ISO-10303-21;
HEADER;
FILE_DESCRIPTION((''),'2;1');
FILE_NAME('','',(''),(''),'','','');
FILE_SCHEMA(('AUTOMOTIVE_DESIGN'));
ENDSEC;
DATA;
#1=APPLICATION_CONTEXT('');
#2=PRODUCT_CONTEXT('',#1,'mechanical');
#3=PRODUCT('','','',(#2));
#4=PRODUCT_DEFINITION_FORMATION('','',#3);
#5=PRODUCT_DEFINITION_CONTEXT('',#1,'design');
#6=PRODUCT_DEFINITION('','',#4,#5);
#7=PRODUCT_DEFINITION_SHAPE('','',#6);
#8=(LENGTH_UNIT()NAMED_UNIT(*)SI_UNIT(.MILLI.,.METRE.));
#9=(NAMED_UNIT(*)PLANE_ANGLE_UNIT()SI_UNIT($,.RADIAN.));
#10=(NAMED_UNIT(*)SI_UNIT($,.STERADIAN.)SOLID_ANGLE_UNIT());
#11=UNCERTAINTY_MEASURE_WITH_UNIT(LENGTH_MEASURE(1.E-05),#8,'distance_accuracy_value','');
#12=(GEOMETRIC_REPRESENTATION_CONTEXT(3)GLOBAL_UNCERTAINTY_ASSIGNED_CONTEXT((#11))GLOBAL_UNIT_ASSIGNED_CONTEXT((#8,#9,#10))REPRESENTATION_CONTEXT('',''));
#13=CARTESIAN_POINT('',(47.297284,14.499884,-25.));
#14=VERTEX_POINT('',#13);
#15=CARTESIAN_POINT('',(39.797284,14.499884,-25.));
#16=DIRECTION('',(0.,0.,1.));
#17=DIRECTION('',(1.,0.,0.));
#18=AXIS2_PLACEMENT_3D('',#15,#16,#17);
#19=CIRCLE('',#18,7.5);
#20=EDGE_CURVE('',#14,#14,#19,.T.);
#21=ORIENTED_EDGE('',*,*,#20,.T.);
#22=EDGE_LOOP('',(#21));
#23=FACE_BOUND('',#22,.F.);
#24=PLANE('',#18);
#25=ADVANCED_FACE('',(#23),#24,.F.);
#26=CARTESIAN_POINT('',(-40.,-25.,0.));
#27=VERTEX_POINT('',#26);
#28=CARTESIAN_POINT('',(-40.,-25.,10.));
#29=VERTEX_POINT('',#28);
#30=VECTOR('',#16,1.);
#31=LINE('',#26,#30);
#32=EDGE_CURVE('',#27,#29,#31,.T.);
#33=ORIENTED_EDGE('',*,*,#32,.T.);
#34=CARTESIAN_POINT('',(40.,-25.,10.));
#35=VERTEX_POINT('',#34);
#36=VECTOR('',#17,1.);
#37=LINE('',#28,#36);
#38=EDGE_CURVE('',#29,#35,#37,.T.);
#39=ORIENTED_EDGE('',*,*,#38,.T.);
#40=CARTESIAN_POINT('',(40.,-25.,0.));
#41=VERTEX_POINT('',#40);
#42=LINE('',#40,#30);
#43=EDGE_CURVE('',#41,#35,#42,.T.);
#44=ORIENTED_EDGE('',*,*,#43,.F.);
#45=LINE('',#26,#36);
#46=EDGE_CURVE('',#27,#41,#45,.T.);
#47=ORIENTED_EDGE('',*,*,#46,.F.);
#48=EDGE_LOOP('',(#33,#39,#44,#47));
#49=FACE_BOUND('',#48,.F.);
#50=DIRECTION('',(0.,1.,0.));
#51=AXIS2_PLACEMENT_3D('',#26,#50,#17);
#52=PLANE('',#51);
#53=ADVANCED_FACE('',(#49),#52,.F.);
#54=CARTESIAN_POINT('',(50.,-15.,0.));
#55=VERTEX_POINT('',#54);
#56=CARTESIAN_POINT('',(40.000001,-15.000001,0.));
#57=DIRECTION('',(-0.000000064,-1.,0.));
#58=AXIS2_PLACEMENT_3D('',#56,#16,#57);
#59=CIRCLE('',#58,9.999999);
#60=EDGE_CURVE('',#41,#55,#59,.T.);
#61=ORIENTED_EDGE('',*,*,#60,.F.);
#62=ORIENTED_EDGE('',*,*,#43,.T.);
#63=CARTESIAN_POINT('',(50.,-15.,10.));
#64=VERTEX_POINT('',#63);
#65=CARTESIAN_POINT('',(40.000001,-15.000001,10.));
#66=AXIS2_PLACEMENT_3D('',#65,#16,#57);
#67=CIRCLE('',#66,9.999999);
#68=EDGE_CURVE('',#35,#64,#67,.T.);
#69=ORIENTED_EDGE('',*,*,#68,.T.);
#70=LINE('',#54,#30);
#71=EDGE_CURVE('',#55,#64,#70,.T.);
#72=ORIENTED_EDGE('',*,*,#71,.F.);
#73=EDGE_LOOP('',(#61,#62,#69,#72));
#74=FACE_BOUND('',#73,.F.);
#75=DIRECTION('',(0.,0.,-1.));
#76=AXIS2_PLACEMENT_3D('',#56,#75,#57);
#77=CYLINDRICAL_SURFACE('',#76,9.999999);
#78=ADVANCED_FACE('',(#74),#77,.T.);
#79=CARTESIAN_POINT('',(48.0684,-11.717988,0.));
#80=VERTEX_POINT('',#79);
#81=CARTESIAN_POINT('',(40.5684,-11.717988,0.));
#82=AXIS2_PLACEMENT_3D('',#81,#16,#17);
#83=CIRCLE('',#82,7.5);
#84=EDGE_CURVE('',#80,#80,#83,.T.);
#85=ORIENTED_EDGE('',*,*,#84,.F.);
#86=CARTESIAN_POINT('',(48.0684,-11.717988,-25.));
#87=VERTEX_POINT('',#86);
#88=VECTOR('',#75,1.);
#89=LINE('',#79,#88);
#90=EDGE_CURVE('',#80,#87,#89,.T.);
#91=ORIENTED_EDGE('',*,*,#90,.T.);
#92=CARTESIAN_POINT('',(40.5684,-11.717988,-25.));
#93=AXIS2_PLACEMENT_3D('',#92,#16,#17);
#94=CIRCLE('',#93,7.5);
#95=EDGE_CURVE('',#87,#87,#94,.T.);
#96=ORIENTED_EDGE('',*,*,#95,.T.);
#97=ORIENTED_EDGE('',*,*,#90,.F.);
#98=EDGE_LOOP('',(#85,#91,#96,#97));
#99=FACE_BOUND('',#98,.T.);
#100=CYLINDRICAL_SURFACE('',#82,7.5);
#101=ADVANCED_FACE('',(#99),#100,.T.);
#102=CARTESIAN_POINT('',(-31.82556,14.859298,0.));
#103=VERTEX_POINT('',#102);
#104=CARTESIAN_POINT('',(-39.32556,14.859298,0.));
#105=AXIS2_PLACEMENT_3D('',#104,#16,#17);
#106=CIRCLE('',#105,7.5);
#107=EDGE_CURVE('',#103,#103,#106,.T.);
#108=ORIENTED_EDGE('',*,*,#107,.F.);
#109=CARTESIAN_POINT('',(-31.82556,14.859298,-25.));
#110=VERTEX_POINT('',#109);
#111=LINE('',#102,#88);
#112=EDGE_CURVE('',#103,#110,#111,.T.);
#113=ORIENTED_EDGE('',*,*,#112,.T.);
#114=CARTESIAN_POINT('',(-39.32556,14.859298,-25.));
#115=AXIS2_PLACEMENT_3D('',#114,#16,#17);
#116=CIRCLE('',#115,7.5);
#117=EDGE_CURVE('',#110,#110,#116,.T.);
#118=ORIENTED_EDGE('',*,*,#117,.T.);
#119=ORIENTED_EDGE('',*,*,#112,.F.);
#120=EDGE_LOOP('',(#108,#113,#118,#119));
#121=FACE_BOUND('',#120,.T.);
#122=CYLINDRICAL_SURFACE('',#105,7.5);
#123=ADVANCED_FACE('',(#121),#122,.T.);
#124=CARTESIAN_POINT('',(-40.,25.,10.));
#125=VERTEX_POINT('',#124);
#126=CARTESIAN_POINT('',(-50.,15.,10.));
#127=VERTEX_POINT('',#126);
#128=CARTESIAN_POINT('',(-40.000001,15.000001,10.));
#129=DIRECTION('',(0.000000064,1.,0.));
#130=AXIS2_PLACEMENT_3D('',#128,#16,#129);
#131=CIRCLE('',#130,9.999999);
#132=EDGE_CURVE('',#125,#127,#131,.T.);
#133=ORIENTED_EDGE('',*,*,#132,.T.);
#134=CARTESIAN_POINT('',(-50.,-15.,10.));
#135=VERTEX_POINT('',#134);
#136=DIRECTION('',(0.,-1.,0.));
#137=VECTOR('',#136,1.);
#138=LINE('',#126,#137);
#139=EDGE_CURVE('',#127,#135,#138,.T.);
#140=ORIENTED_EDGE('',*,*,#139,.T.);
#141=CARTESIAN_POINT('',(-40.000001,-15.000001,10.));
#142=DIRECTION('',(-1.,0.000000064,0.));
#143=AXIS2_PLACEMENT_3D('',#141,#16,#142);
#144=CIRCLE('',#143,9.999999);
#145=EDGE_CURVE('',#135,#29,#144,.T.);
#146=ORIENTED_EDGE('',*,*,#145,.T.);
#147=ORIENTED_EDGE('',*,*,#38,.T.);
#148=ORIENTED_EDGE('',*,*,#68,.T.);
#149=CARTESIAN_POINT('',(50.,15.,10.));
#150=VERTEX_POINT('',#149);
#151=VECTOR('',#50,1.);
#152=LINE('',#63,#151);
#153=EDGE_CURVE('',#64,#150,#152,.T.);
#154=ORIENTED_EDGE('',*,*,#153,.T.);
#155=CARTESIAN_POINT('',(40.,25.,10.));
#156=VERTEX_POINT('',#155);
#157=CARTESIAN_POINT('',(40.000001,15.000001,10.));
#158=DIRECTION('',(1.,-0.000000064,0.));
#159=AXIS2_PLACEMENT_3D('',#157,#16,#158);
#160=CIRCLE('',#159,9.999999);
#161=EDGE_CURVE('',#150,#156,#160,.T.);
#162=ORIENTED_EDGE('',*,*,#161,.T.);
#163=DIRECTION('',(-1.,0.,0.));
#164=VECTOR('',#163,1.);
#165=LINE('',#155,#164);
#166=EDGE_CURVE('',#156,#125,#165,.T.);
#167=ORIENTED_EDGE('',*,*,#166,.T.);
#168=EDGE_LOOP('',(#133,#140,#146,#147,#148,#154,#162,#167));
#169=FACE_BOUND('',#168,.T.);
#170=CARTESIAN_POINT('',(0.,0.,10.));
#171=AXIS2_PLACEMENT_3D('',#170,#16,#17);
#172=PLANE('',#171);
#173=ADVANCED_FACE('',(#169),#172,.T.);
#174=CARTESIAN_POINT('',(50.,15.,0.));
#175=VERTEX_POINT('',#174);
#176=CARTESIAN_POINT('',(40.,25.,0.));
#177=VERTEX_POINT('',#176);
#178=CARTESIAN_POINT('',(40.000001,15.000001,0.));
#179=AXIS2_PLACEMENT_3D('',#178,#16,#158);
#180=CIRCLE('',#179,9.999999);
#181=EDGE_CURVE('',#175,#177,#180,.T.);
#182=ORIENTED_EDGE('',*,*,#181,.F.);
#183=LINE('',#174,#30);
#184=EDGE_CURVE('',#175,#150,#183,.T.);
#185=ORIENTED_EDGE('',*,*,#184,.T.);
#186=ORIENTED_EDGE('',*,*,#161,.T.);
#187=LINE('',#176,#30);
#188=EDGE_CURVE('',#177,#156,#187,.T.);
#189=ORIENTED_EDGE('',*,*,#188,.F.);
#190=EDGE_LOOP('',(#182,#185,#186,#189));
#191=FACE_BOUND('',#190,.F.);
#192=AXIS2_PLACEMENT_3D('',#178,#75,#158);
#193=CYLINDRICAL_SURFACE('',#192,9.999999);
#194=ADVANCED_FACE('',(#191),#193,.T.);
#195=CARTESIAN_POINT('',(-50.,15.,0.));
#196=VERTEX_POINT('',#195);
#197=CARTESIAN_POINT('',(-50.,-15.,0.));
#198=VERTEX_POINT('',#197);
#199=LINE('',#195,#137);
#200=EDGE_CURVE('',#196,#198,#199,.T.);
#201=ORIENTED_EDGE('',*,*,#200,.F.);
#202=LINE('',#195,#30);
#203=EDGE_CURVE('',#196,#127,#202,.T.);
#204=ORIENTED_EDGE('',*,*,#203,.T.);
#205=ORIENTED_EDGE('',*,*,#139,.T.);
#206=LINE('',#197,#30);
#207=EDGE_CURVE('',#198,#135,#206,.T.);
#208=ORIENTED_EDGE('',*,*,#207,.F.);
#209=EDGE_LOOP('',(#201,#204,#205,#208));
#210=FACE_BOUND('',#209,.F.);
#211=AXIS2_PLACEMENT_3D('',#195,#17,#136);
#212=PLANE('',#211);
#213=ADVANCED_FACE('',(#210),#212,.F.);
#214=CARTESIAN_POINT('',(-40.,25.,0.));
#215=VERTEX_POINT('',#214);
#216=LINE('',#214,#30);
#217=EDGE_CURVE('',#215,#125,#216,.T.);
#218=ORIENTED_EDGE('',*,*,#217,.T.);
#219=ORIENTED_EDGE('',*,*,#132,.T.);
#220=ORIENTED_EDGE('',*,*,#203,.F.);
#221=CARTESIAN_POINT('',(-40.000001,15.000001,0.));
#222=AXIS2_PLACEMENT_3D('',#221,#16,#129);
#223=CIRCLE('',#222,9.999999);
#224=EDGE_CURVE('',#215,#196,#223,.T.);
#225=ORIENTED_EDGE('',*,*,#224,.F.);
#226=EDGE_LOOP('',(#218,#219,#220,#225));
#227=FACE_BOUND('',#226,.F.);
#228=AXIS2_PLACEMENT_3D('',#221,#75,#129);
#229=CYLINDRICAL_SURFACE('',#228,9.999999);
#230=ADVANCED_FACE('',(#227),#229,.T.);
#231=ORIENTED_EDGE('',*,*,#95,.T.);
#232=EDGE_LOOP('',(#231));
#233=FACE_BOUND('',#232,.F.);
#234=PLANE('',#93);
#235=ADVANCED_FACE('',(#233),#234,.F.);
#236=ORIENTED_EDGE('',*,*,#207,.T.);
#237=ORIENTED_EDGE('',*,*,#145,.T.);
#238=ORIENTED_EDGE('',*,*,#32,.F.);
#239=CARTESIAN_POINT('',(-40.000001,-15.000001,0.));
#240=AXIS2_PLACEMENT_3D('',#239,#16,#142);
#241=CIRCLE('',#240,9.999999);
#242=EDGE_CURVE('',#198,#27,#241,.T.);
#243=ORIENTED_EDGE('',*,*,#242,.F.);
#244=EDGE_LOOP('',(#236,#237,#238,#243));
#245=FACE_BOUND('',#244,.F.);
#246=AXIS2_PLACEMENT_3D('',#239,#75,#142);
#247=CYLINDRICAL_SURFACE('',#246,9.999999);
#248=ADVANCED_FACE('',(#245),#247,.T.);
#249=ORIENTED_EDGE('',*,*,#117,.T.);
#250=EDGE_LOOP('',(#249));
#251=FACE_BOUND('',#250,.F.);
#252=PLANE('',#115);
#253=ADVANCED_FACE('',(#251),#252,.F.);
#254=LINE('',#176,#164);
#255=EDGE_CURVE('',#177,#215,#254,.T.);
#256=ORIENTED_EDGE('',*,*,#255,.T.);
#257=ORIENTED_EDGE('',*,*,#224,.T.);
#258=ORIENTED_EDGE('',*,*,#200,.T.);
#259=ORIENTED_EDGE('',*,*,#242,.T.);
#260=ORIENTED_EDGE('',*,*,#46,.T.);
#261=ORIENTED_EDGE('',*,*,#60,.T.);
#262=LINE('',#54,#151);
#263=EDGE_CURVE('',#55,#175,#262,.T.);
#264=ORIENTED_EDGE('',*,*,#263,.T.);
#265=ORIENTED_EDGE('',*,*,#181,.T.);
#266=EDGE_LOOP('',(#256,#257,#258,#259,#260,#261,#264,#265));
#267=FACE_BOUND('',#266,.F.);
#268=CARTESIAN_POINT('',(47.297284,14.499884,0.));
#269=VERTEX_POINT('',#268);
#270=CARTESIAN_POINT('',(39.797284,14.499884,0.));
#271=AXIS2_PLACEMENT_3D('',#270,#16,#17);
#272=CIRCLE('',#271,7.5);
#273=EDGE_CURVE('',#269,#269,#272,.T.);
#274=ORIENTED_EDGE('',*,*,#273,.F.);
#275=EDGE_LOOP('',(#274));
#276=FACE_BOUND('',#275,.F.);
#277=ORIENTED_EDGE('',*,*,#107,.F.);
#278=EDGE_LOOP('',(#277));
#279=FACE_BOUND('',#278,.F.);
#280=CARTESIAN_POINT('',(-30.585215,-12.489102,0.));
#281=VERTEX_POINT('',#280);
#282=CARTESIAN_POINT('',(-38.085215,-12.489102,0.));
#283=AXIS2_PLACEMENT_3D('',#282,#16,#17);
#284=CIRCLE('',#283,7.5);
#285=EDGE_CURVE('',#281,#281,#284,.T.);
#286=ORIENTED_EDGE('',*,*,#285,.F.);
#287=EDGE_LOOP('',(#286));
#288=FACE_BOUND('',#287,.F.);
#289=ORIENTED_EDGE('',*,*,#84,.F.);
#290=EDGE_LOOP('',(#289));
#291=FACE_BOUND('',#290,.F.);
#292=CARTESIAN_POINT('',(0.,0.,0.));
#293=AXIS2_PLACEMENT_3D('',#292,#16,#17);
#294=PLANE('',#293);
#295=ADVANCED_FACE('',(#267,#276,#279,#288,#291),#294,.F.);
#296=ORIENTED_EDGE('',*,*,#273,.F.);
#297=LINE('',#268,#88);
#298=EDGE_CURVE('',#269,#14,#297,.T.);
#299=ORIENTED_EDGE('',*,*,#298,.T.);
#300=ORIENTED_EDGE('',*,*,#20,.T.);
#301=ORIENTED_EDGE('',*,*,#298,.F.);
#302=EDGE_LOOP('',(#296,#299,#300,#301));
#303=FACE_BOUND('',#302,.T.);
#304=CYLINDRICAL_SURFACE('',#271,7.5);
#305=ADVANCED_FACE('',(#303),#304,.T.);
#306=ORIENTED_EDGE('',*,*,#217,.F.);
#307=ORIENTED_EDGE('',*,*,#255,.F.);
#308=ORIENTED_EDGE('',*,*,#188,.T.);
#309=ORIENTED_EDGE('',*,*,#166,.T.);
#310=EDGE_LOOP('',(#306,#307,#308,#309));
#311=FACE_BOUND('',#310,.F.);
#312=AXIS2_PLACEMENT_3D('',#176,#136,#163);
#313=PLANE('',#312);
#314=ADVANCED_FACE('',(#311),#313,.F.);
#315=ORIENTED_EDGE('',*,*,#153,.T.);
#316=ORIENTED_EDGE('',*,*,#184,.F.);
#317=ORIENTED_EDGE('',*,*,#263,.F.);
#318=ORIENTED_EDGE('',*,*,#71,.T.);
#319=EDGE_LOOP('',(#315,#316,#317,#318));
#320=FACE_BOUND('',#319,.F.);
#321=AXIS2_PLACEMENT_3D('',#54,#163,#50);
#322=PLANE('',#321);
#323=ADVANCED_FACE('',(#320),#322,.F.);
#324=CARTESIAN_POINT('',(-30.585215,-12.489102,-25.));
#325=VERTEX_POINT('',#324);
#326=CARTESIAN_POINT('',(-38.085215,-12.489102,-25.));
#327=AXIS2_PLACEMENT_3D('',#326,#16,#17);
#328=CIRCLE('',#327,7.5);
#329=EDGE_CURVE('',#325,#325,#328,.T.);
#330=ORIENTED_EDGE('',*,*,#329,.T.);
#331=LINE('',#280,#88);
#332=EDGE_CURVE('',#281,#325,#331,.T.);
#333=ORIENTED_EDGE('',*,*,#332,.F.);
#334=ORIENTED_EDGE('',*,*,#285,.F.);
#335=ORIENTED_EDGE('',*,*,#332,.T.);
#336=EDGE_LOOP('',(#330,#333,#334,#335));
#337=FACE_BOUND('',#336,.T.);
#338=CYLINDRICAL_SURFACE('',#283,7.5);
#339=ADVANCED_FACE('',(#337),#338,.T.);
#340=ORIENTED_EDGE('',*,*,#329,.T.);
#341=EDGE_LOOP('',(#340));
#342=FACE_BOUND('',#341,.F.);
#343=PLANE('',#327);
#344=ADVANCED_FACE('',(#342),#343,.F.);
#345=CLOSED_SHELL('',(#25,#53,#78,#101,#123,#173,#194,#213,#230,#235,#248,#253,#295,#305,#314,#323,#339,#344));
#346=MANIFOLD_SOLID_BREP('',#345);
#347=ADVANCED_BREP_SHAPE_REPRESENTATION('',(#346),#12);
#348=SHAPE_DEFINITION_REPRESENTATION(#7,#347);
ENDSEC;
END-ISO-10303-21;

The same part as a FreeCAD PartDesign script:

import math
import FreeCAD as App
import Part
import Sketcher

V = App.Vector

doc = App.newDocument("Part")
body = doc.addObject("PartDesign::Body", "Body")

sketch1 = doc.addObject("Sketcher::SketchObject", "Sketch")
body.addObject(sketch1)
sketch1.AttachmentSupport = (doc.XY_Plane, [""])
sketch1.MapMode = "FlatFace"
sketch1.addGeometry([
    Part.LineSegment(V(40, 25, 0), V(-40, 25, 0)),
    Part.ArcOfCircle(Part.Circle(V(-40.000001, 15.000001, 0), V(0, 0, 1), 9.999999), math.radians(89.999996), math.radians(180.000004)),
    Part.LineSegment(V(-50, 15, 0), V(-50, -15, 0)),
    Part.ArcOfCircle(Part.Circle(V(-40.000001, -15.000001, 0), V(0, 0, 1), 9.999999), math.radians(179.999996), math.radians(270.000004)),
    Part.LineSegment(V(-40, -25, 0), V(40, -25, 0)),
    Part.ArcOfCircle(Part.Circle(V(40.000001, -15.000001, 0), V(0, 0, 1), 9.999999), math.radians(-90.000004), math.radians(0.000004)),
    Part.LineSegment(V(50, -15, 0), V(50, 15, 0)),
    Part.ArcOfCircle(Part.Circle(V(40.000001, 15.000001, 0), V(0, 0, 1), 9.999999), math.radians(-0.000004), math.radians(90.000004)),
], False)
sketch1.addConstraint([
    Sketcher.Constraint("Tangent", 0, 2, 1, 1),
    Sketcher.Constraint("Tangent", 1, 2, 2, 1),
    Sketcher.Constraint("Tangent", 2, 2, 3, 1),
    Sketcher.Constraint("Tangent", 3, 2, 4, 1),
    Sketcher.Constraint("Tangent", 4, 2, 5, 1),
    Sketcher.Constraint("Tangent", 5, 2, 6, 1),
    Sketcher.Constraint("Tangent", 6, 2, 7, 1),
    Sketcher.Constraint("Tangent", 7, 2, 0, 1),
    Sketcher.Constraint("Horizontal", 0),
    Sketcher.Constraint("Vertical", 2),
    Sketcher.Constraint("Horizontal", 4),
    Sketcher.Constraint("Vertical", 6),
    Sketcher.Constraint("Equal", 1, 3),
    Sketcher.Constraint("Equal", 3, 5),
    Sketcher.Constraint("Equal", 5, 7),
    Sketcher.Constraint("Symmetric", 1, 3, 5, 3, -1, 1),
    Sketcher.Constraint("Radius", 1, 9.999999),
    Sketcher.Constraint("DistanceX", 0, 2, 0, 1, 80.0),
    Sketcher.Constraint("DistanceY", 2, 2, 2, 1, 30.0),
])
pad1 = doc.addObject("PartDesign::Pad", "Pad")
body.addObject(pad1)
pad1.Profile = sketch1
pad1.Length = 10

sketch2 = doc.addObject("Sketcher::SketchObject", "Sketch001")
body.addObject(sketch2)
sketch2.AttachmentSupport = (doc.XY_Plane, [""])
sketch2.MapMode = "FlatFace"
sketch2.addGeometry([
    Part.Circle(V(-39.32556, 14.859298, 0), V(0, 0, 1), 7.5),
    Part.Circle(V(-38.085215, -12.489102, 0), V(0, 0, 1), 7.5),
    Part.Circle(V(39.797284, 14.499884, 0), V(0, 0, 1), 7.5),
    Part.Circle(V(40.5684, -11.717988, 0), V(0, 0, 1), 7.5),
], False)
sketch2.addConstraint([
    Sketcher.Constraint("Equal", 0, 1),
    Sketcher.Constraint("Equal", 1, 2),
    Sketcher.Constraint("Equal", 2, 3),
    Sketcher.Constraint("Diameter", 0, 15.0),
    Sketcher.Constraint("DistanceY", -1, 1, 0, 3, 14.859298),
    Sketcher.Constraint("DistanceX", -1, 1, 3, 3, 40.5684),
    Sketcher.Constraint("DistanceY", 1, 3, 0, 3, 27.3484),
    Sketcher.Constraint("DistanceX", 1, 3, 2, 3, 77.882499),
    Sketcher.Constraint("DistanceX", 0, 3, -1, 1, 39.32556),
    Sketcher.Constraint("DistanceY", 3, 3, 2, 3, 26.217872),
    Sketcher.Constraint("DistanceX", 1, 3, -1, 1, 38.085215),
    Sketcher.Constraint("DistanceY", -1, 1, 2, 3, 14.499884),
])
pad2 = doc.addObject("PartDesign::Pad", "Pad001")
body.addObject(pad2)
pad2.Profile = sketch2
pad2.Length = 25
pad2.Reversed = True

doc.recompute()
